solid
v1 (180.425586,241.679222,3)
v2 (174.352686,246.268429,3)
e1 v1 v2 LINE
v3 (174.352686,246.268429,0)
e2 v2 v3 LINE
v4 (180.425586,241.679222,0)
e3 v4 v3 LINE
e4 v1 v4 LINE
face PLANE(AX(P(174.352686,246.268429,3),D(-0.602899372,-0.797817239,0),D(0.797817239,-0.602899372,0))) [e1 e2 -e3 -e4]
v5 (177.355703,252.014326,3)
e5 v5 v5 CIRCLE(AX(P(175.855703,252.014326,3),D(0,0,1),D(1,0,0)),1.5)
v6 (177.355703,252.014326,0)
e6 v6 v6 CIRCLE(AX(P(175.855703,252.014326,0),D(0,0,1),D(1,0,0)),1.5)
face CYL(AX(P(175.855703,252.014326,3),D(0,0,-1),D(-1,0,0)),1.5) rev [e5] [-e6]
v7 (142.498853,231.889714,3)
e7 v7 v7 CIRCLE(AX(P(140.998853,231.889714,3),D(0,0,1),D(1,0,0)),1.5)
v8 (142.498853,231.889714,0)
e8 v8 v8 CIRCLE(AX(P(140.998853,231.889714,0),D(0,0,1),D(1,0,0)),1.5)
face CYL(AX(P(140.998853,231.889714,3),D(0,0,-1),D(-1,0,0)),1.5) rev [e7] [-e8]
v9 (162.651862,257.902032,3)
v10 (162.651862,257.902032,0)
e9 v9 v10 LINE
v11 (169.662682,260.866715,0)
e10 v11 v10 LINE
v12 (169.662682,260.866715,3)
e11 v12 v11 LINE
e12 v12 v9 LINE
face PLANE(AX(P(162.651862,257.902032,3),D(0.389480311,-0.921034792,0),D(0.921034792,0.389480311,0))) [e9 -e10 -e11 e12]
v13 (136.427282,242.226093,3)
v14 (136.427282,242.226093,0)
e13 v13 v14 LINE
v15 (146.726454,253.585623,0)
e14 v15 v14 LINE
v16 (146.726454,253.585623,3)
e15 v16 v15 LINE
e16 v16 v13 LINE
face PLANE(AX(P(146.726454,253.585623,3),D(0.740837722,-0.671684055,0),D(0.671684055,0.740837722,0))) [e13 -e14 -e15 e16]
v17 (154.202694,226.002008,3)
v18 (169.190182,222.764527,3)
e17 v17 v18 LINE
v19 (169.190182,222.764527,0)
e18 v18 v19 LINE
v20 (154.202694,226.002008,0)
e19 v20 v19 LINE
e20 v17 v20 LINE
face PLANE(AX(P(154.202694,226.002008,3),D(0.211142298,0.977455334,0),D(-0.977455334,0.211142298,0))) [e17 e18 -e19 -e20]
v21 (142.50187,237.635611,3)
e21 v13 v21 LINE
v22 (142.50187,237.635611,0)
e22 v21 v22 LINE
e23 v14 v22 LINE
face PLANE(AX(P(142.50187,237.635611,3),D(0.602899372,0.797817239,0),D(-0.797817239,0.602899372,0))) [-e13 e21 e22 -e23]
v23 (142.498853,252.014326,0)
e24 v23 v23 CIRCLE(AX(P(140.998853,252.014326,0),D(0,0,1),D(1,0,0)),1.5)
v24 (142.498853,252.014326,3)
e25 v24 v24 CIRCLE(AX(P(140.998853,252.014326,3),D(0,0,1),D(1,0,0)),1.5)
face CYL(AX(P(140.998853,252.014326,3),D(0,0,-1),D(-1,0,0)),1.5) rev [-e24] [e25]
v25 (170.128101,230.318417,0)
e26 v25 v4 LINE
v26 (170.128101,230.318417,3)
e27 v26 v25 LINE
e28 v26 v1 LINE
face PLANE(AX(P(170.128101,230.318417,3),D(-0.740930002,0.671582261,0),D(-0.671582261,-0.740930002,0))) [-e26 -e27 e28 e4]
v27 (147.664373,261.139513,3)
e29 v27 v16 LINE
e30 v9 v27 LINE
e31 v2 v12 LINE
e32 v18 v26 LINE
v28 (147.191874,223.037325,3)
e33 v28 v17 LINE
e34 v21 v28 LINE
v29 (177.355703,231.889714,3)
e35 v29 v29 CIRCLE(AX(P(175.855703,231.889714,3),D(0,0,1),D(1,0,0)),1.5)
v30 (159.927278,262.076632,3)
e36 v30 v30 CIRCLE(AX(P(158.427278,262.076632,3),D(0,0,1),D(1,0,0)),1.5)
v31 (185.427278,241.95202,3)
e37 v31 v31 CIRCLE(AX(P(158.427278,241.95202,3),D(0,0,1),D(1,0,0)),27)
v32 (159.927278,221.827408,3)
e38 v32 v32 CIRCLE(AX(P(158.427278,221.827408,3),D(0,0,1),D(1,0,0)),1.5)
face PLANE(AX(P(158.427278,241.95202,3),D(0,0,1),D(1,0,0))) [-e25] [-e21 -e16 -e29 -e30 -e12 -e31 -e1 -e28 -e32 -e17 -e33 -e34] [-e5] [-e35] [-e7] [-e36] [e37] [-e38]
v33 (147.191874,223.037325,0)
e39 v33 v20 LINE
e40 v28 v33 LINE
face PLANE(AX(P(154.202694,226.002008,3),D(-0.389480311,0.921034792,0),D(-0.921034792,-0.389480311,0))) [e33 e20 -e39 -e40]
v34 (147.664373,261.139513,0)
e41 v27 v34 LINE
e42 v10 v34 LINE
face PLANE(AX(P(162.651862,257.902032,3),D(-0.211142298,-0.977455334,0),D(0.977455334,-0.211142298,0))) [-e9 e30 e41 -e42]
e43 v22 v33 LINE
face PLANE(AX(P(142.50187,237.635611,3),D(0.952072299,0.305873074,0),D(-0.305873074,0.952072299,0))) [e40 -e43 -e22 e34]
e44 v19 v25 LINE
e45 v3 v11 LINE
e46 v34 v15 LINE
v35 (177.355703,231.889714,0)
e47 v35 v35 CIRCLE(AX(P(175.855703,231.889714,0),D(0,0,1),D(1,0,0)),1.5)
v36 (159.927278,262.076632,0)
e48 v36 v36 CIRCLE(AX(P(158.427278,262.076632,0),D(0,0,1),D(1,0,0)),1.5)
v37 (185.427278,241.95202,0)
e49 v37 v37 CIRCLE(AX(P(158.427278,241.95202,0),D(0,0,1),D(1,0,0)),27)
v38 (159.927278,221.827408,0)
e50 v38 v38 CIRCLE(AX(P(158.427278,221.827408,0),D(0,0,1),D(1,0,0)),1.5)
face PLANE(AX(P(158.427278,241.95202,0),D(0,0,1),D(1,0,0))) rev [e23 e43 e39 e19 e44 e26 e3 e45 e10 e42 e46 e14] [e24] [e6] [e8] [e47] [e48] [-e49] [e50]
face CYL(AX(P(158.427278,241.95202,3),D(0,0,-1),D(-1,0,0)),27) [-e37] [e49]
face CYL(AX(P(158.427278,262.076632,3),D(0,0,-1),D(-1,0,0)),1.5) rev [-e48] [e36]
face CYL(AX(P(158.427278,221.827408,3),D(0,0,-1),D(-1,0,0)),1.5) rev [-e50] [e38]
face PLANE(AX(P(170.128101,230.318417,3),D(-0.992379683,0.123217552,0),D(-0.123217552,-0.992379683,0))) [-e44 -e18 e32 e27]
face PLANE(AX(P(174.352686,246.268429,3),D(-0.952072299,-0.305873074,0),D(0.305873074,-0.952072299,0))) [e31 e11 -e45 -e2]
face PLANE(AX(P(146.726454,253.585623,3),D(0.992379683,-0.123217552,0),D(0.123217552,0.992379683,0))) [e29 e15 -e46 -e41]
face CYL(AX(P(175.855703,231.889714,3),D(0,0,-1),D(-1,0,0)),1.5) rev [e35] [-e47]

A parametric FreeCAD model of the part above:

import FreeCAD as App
import Part
import Sketcher


def add_polygon(sketch, points):
    """Adds a closed chain of lines whose ends are joined by coincident constraints."""
    first, n = sketch.GeometryCount, len(points)
    for a, b in zip(points, points[1:] + points[:1]):
        sketch.addGeometry(Part.LineSegment(App.Vector(*a, 0), App.Vector(*b, 0)), False)
    for i in range(n):
        sketch.addConstraint(Sketcher.Constraint("Coincident", first + i, 2, first + (i + 1) % n, 1))

doc = App.newDocument("Part")
params = doc.addObject("Spreadsheet::Sheet", "Params")
for row, (alias, value) in enumerate([
    ("sketch1_diameter", "54 mm"),
    ("sketch1_diameter2", "3 mm"),
    ("sketch1_diameter3", "3 mm"),
    ("sketch1_diameter4", "3 mm"),
    ("sketch1_diameter5", "3 mm"),
    ("pad1_length", "3 mm"),
], start=1):
    params.set(f"A{row}", alias)
    params.set(f"B{row}", "=" + value)
    params.setAlias(f"B{row}", alias)

body = doc.addObject("PartDesign::Body", "Body")

# Sketch on XY plane
sketch1 = doc.addObject("Sketcher::SketchObject", "Sketch")
body.addObject(sketch1)
sketch1.AttachmentSupport = (doc.XY_Plane, [""])
sketch1.MapMode = "FlatFace"
sketch1.addGeometry(Part.Circle(App.Vector(158.427278, 241.95202, 0), App.Vector(0, 0, 1), 27), False)  # 0
sketch1.addGeometry(Part.Circle(App.Vector(140.998853, 231.889714, 0), App.Vector(0, 0, 1), 1.5), False)  # 1
sketch1.addGeometry(Part.Circle(App.Vector(158.427278, 221.827408, 0), App.Vector(0, 0, 1), 1.5), False)  # 2
add_polygon(sketch1, [(169.662682, 260.866715), (174.352686, 246.268429), (180.425586, 241.679222), (170.128101, 230.318417), (169.190182, 222.764527), (154.202694, 226.002008), (147.191874, 223.037325), (142.50187, 237.635611), (136.427282, 242.226093), (146.726454, 253.585623), (147.664373, 261.139513), (162.651862, 257.902032)])  # lines 3-14
sketch1.addGeometry(Part.Circle(App.Vector(175.855703, 231.889714, 0), App.Vector(0, 0, 1), 1.5), False)  # 15
sketch1.addGeometry(Part.Circle(App.Vector(140.998853, 252.014326, 0), App.Vector(0, 0, 1), 1.5), False)  # 16
sketch1.addGeometry(Part.Circle(App.Vector(175.855703, 252.014326, 0), App.Vector(0, 0, 1), 1.5), False)  # 17
sketch1.addGeometry(Part.Circle(App.Vector(158.427278, 262.076632, 0), App.Vector(0, 0, 1), 1.5), False)  # 18
sketch1.addConstraint(Sketcher.Constraint("Diameter", 0, 54.0))
sketch1.addConstraint(Sketcher.Constraint("Diameter", 1, 3.0))
sketch1.addConstraint(Sketcher.Constraint("Diameter", 2, 3.0))
sketch1.addConstraint(Sketcher.Constraint("Diameter", 15, 3.0))
sketch1.addConstraint(Sketcher.Constraint("Diameter", 16, 3.0))
sketch1.addConstraint(Sketcher.Constraint("Diameter", 17, 3.0))
sketch1.addConstraint(Sketcher.Constraint("Diameter", 18, 3.0))
sketch1.addConstraint(Sketcher.Constraint("DistanceX", -1, 1, 5, 2, 170.128101))
sketch1.addConstraint(Sketcher.Constraint("DistanceX", 3, 2, 4, 2, 6.072901))
sketch1.addConstraint(Sketcher.Constraint("DistanceX", 5, 2, 15, 3, 5.727601))
sketch1.addConstraint(Sketcher.Constraint("DistanceY", 2, 3, 7, 2, 4.1746))
sketch1.addConstraint(Sketcher.Constraint("DistanceX", 16, 3, 11, 2, 5.727601))
sketch1.addConstraint(Sketcher.Constraint("DistanceY", 13, 2, 18, 3, 4.1746))
sketch1.addConstraint(Sketcher.Constraint("Distance", 3, 15.33317))
sketch1.addConstraint(Sketcher.Constraint("Distance", 5, 15.33317))
sketch1.addConstraint(Sketcher.Constraint("Distance", 7, 15.33317))
sketch1.addConstraint(Sketcher.Constraint("Distance", 9, 15.33317))
sketch1.addConstraint(Sketcher.Constraint("Distance", 10, 7.61401))
sketch1.addConstraint(Sketcher.Constraint("Distance", 11, 15.333359))
sketch1.addConstraint(Sketcher.Constraint("Distance", 13, 15.33317))
sketch1.addConstraint(Sketcher.Constraint("DistanceY", -1, 1, 0, 3, 241.95202))
sketch1.addConstraint(Sketcher.Constraint("DistanceY", -1, 1, 2, 3, 221.827408))
sketch1.addConstraint(Sketcher.Constraint("DistanceY", -1, 1, 18, 3, 262.076632))
sketch1.addConstraint(Sketcher.Constraint("DistanceY", -1, 1, 3, 2, 246.268429))
sketch1.addConstraint(Sketcher.Constraint("DistanceX", -1, 1, 9, 2, 142.50187))
sketch1.addConstraint(Sketcher.Constraint("DistanceY", -1, 1, 9, 2, 237.635611))
sketch1.addConstraint(Sketcher.Constraint("DistanceX", -1, 1, 10, 2, 136.427282))
sketch1.addConstraint(Sketcher.Constraint("DistanceX", -1, 1, 13, 2, 162.651862))
sketch1.addConstraint(Sketcher.Constraint("DistanceX", -1, 1, 14, 2, 169.662682))
sketch1.addConstraint(Sketcher.Constraint("DistanceX", 1, 3, 15, 3, 34.85685))
sketch1.addConstraint(Sketcher.Constraint("DistanceY", 1, 3, 16, 3, 20.124612))
sketch1.addConstraint(Sketcher.Constraint("DistanceX", 16, 3, 15, 3, 34.85685))
sketch1.addConstraint(Sketcher.Constraint("DistanceY", 15, 3, 16, 3, 20.124612))
sketch1.addConstraint(Sketcher.Constraint("DistanceY", 15, 3, 17, 3, 20.124612))
sketch1.addConstraint(Sketcher.Constraint("DistanceX", 16, 3, 17, 3, 34.85685))
sketch1.addConstraint(Sketcher.Constraint("DistanceY", 15, 3, 4, 2, 9.789508))
sketch1.addConstraint(Sketcher.Constraint("DistanceX", 0, 3, 4, 2, 21.998309))
sketch1.addConstraint(Sketcher.Constraint("DistanceX", 2, 3, 4, 2, 21.998309))
sketch1.addConstraint(Sketcher.Constraint("DistanceY", 2, 3, 5, 2, 8.491008))
sketch1.addConstraint(Sketcher.Constraint("DistanceX", 6, 2, 5, 2, 0.937919))
sketch1.addConstraint(Sketcher.Constraint("DistanceY", 6, 2, 5, 2, 7.55389))
sketch1.addConstraint(Sketcher.Constraint("DistanceX", 8, 2, 7, 2, 7.01082))
sketch1.addConstraint(Sketcher.Constraint("DistanceY", 8, 2, 1, 3, 8.852389))
sketch1.addConstraint(Sketcher.Constraint("DistanceX", 11, 2, 12, 2, 0.937919))
sketch1.addConstraint(Sketcher.Constraint("DistanceX", -1, 1, 18, 3, 158.427278))
sketch1.setExpression("Constraints[12]", "Params.sketch1_diameter")
sketch1.setExpression("Constraints[13]", "Params.sketch1_diameter2")
sketch1.setExpression("Constraints[14]", "Params.sketch1_diameter3")
sketch1.setExpression("Constraints[15]", "Params.sketch1_diameter4")
sketch1.setExpression("Constraints[16]", "Params.sketch1_diameter5")
pad1 = doc.addObject("PartDesign::Pad", "Pad")
body.addObject(pad1)
pad1.Profile = sketch1
pad1.setExpression("Length", "Params.pad1_length")

doc.recompute()
